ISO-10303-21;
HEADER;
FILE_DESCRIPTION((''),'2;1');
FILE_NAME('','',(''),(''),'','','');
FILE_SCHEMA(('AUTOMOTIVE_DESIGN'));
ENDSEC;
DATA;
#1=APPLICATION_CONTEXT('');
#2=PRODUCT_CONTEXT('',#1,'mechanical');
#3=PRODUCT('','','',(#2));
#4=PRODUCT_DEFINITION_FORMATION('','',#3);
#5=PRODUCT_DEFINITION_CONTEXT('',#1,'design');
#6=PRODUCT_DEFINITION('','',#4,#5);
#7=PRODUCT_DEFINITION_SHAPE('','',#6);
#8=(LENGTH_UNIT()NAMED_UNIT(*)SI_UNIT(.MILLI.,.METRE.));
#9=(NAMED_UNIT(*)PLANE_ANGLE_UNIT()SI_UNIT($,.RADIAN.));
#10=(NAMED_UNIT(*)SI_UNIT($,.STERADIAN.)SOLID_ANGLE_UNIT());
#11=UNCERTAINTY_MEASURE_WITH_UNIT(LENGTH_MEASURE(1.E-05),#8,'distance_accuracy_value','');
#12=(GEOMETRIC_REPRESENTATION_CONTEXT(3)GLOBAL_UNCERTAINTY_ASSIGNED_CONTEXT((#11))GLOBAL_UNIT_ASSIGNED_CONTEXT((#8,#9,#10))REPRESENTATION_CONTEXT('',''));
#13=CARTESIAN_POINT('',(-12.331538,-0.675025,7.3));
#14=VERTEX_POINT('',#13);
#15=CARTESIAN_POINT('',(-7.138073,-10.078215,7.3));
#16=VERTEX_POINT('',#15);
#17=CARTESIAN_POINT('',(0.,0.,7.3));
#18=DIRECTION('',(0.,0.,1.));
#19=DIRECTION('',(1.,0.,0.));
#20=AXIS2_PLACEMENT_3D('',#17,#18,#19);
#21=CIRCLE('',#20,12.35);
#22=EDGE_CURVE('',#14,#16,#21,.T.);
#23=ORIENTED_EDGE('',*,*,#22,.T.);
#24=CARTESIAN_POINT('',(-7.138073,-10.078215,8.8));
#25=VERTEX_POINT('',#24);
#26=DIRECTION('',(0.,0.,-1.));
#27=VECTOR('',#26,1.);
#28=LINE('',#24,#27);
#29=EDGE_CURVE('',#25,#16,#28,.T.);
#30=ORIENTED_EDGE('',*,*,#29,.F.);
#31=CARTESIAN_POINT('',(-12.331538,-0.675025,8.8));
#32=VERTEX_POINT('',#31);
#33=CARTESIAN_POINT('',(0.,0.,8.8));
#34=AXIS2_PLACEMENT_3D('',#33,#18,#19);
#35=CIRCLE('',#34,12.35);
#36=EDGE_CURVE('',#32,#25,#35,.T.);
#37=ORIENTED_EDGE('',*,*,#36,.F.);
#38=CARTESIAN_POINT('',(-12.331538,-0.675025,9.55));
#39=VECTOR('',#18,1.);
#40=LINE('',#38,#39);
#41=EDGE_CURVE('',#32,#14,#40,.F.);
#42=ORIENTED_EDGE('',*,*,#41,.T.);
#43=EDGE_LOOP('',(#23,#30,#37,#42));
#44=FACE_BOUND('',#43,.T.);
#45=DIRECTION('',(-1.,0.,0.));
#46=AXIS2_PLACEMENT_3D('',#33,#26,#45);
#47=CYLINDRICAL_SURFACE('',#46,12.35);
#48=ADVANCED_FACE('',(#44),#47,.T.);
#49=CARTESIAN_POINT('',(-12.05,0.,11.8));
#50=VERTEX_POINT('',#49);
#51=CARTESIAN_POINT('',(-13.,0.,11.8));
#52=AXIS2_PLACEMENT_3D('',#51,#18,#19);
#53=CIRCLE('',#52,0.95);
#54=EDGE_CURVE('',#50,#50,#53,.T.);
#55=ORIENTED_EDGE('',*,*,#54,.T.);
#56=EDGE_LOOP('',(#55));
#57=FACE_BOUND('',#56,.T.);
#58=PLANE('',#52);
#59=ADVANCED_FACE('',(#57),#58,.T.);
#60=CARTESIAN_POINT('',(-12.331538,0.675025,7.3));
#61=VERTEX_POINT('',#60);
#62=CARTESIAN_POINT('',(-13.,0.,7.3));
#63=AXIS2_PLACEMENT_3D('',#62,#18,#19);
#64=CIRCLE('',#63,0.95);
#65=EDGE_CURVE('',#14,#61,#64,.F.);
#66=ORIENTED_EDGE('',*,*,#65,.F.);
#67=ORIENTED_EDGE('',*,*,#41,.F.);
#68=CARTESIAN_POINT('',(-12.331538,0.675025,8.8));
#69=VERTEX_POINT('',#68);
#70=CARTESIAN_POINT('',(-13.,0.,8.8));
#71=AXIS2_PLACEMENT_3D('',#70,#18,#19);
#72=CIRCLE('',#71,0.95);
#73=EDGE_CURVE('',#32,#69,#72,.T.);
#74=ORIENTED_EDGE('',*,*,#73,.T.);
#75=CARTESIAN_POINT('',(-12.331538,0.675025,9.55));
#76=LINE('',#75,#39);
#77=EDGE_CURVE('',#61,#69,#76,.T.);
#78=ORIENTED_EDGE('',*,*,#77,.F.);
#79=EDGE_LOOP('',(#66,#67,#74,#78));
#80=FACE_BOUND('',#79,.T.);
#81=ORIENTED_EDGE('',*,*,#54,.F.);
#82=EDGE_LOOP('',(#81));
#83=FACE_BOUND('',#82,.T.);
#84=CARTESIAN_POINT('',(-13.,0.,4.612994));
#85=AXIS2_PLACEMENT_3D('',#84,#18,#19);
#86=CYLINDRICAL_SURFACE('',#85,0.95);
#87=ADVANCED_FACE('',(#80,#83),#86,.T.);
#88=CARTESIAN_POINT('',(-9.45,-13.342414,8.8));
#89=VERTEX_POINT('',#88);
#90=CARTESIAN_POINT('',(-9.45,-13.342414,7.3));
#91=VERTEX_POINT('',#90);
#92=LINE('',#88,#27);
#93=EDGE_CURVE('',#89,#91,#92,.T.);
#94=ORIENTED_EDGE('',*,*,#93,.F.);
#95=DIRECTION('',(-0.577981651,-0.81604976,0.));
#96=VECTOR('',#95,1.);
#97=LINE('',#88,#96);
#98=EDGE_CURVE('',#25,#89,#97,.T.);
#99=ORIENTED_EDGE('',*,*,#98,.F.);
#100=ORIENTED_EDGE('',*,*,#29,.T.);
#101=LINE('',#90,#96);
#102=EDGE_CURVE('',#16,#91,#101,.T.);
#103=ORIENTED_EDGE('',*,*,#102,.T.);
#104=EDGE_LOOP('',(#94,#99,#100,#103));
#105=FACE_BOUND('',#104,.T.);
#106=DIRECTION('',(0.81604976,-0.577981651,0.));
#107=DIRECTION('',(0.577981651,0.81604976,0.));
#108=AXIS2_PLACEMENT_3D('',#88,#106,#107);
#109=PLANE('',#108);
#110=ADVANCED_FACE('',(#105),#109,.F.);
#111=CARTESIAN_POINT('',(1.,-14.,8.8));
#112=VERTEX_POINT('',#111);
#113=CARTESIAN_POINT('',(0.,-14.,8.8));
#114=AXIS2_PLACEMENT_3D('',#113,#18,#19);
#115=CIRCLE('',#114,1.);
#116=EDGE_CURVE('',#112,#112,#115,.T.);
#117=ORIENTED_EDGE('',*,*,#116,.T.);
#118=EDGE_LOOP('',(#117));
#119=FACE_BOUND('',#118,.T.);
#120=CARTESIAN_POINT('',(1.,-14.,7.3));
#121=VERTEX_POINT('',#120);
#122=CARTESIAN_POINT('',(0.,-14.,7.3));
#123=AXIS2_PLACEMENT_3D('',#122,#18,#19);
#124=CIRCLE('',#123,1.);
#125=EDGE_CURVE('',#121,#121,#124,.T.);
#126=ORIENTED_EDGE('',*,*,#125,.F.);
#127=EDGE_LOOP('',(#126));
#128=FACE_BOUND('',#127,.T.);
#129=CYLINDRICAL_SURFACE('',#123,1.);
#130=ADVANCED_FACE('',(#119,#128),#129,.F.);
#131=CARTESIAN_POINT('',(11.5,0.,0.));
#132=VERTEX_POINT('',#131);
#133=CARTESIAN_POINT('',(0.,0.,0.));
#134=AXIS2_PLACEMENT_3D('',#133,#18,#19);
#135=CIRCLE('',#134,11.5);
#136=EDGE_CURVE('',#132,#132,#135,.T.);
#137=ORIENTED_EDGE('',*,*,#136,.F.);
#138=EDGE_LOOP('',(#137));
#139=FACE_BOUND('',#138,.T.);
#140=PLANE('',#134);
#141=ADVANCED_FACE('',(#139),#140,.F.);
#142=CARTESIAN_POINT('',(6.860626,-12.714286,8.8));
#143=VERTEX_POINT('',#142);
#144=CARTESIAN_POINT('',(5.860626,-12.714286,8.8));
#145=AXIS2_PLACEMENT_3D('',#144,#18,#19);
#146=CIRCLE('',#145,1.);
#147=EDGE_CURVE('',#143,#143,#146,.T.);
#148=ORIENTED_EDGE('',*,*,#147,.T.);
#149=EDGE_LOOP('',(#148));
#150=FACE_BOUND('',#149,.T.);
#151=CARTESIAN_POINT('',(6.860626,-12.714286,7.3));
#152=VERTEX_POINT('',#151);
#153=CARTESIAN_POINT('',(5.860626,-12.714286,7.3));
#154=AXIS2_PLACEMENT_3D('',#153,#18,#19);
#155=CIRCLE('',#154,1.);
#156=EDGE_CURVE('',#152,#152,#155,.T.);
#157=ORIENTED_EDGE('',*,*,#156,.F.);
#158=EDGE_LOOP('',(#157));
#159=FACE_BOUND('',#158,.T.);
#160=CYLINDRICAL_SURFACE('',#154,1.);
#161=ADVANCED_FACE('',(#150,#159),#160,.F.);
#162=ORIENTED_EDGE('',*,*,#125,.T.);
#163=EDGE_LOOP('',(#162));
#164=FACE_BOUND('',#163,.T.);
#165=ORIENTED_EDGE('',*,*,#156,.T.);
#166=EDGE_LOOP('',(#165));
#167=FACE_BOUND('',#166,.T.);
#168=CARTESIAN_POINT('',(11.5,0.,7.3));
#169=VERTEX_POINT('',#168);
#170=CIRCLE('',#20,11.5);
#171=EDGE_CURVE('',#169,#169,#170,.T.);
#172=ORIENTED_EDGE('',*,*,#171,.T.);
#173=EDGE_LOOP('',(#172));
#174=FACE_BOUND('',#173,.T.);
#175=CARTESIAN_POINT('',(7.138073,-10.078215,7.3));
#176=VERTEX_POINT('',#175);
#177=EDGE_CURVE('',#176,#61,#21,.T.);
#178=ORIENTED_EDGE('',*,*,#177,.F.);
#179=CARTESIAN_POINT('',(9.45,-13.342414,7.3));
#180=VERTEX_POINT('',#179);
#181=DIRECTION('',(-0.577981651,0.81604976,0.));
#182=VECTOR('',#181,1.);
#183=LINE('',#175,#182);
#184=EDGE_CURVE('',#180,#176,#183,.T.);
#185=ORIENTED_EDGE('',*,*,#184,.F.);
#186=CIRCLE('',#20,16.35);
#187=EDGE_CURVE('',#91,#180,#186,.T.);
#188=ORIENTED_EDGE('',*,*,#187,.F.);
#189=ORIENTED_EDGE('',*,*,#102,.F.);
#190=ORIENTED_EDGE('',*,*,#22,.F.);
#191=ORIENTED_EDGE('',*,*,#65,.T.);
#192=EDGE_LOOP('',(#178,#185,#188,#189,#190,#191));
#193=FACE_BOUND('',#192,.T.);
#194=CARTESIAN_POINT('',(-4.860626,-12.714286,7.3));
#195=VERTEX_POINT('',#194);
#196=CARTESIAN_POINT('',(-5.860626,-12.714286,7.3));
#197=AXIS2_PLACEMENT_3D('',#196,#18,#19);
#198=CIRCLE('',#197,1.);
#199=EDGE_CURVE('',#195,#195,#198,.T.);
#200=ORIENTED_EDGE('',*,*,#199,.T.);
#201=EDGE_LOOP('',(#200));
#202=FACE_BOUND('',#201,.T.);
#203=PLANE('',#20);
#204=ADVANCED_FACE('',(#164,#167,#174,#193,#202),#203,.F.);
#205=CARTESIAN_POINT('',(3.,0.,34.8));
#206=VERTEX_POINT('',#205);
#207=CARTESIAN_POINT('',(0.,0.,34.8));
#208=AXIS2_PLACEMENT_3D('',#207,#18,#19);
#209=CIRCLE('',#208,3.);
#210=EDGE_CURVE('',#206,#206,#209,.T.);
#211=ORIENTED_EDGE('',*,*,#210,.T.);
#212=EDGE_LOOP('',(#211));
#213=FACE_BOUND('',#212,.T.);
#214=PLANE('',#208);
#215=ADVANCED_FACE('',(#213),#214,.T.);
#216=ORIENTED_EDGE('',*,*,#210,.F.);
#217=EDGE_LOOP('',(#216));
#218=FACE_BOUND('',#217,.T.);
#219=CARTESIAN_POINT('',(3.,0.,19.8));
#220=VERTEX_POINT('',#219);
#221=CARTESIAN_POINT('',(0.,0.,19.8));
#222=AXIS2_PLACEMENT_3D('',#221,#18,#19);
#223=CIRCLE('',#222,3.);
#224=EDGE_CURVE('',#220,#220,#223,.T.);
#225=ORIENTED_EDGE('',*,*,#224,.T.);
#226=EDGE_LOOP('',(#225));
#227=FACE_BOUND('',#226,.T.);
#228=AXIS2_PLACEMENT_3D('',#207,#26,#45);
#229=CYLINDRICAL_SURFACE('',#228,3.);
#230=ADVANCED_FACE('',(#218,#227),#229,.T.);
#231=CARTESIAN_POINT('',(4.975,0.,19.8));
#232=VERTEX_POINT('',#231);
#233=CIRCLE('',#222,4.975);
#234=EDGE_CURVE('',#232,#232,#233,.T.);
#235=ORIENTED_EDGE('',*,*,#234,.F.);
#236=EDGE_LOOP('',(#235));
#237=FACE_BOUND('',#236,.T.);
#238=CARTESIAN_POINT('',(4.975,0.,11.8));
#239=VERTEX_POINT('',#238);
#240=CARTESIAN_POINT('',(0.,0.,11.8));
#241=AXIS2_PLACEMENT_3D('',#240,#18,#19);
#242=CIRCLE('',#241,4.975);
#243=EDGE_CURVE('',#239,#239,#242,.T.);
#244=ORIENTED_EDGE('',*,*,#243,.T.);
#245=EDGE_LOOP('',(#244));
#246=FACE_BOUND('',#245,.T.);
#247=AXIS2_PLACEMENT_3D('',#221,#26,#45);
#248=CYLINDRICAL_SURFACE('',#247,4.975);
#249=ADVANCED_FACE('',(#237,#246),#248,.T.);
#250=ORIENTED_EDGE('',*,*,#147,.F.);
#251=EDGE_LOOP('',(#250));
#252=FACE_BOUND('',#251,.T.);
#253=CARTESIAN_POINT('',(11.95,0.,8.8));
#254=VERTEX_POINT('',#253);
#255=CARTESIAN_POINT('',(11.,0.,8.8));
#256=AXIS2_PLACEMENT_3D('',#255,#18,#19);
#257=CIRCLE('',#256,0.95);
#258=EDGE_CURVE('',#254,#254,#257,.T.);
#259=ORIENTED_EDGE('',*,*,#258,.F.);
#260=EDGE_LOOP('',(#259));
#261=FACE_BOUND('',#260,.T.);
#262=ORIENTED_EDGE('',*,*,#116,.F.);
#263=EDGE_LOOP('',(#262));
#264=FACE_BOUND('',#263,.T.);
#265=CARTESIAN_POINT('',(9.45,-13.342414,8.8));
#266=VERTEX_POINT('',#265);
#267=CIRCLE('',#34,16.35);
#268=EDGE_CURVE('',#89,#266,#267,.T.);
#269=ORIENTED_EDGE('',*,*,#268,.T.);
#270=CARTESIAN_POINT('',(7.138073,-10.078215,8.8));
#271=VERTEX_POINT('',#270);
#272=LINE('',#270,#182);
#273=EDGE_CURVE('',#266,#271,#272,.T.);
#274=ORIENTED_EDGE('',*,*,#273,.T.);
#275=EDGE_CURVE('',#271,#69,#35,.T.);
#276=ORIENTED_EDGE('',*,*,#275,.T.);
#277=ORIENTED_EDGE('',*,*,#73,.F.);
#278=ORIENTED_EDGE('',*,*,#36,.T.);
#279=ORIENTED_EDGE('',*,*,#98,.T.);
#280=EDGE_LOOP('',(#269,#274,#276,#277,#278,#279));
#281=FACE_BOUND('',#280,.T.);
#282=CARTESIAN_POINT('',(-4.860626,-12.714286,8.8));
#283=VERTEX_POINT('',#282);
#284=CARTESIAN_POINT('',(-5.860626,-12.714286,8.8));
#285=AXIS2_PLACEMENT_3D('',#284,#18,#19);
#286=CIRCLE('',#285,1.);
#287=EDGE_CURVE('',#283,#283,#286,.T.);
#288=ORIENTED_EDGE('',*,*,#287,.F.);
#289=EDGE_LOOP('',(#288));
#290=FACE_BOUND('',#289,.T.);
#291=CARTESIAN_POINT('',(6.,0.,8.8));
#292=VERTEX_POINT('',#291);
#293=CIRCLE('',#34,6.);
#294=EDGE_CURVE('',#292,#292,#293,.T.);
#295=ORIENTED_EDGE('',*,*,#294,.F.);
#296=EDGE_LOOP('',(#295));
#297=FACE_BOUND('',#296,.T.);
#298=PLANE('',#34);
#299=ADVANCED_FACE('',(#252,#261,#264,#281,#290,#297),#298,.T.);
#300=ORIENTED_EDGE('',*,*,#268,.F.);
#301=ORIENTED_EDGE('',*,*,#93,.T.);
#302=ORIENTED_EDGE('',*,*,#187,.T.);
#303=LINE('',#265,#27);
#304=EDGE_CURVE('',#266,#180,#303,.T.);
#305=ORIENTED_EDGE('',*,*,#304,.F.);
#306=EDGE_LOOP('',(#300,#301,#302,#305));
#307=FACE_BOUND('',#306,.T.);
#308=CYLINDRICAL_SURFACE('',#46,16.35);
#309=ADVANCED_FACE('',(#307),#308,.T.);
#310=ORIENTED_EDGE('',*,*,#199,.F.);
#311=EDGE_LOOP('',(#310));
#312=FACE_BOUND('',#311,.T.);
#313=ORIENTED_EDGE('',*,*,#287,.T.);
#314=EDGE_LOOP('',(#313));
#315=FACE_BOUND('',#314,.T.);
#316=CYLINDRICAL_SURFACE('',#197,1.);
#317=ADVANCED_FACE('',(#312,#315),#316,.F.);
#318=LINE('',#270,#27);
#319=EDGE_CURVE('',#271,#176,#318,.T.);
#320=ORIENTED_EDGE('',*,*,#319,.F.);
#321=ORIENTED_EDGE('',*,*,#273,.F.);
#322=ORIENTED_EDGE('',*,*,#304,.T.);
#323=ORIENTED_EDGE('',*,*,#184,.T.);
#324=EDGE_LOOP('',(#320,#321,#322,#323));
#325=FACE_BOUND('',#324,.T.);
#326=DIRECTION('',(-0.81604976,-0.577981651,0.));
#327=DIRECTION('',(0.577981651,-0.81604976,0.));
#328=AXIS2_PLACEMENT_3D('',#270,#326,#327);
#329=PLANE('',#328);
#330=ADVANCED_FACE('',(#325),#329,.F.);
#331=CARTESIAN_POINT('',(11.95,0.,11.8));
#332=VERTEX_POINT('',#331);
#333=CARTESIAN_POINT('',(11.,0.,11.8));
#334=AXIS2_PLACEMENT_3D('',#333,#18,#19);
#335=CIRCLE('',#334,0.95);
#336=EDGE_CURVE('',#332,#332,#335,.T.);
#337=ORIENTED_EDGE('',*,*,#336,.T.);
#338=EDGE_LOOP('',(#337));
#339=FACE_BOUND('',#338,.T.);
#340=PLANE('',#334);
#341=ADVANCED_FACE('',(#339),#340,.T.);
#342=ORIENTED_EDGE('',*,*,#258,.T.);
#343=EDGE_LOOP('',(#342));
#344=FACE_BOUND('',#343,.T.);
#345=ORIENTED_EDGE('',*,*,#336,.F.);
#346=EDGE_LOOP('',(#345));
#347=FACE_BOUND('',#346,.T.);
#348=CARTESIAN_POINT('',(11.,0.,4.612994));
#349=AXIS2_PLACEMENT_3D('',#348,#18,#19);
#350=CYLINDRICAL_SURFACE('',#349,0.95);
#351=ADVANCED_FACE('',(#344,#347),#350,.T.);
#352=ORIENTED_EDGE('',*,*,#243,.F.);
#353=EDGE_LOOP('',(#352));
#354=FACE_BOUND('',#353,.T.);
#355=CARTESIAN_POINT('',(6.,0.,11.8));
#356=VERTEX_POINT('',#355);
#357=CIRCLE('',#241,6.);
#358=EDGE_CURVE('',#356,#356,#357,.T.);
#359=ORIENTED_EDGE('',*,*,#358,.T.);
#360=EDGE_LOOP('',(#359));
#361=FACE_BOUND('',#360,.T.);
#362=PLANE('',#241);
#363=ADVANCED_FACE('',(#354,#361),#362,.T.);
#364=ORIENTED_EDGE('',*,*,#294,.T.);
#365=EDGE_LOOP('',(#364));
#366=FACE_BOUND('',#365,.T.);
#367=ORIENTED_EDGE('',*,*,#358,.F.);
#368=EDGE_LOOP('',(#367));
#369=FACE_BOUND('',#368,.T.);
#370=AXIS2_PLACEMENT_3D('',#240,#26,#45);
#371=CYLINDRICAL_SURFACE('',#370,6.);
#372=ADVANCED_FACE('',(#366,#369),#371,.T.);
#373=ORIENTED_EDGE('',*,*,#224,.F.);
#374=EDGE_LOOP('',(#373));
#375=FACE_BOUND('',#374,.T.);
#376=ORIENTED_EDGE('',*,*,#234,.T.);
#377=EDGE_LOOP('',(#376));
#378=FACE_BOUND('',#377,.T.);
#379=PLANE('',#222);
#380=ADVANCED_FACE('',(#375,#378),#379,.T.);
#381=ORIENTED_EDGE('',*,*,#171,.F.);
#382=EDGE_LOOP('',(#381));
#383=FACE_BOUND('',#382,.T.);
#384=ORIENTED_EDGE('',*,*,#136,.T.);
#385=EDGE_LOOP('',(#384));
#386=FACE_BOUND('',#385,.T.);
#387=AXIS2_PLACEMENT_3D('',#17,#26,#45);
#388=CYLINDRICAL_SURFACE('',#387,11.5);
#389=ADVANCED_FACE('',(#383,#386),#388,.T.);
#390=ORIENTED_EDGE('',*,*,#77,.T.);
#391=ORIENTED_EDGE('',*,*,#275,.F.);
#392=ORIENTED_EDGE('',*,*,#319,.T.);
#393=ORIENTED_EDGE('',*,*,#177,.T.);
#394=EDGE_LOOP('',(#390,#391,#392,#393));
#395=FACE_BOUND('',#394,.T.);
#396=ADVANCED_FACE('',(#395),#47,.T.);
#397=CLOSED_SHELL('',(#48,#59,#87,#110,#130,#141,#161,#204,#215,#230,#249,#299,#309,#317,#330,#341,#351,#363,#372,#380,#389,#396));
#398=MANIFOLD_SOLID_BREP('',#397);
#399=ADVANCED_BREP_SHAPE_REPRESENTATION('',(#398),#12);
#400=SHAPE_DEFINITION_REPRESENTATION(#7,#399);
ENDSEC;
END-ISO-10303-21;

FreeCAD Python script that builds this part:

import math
import FreeCAD as App
import Part
import Sketcher
from FreeCAD import Vector
Q = App.Units.Quantity

doc = App.newDocument("Part")
params = doc.addObject("Spreadsheet::Sheet", "Params")
for row, (alias, value) in enumerate([
    ("sketch1_diameter", "23 mm"),
    ("pad1_length", "7.3 mm"),
    ("sketch2_radius", "16.35 mm"),
    ("sketch2_radius2", "12.35 mm"),
    ("pad2_length", "1.5 mm"),
    ("sketch3_diameter", "2 mm"),
    ("pocket1_length", "1.5 mm"),
    ("sketch4_diameter", "12 mm"),
    ("pad3_length", "3 mm"),
    ("sketch5_diameter", "9.95 mm"),
    ("pad4_length", "8 mm"),
    ("sketch6_diameter", "6 mm"),
    ("pad5_length", "15 mm"),
    ("sketch7_diameter", "1.9 mm"),
    ("pad6_length", "4.5 mm"),
], start=1):
    params.set(f"A{row}", alias)
    params.set(f"B{row}", "=" + value)
    params.setAlias(f"B{row}", alias)

body = doc.addObject("PartDesign::Body", "Body")

# Sketch on XY plane
sketch1 = doc.addObject("Sketcher::SketchObject", "Sketch")
body.addObject(sketch1)
sketch1.AttachmentSupport = (doc.XY_Plane, [""])
sketch1.MapMode = "FlatFace"
sketch1.addGeometry(Part.Circle(Vector(0, 0, 0), Vector(0, 0, 1), 11.5), False)
sketch1.addConstraint(Sketcher.Constraint("Coincident", 0, 3, -1, 1))
sketch1.addConstraint(Sketcher.Constraint("Diameter", 0, Q("23 mm")))
sketch1.setExpression("Constraints[1]", "Params.sketch1_diameter")
pad1 = doc.addObject("PartDesign::Pad", "Pad")
body.addObject(pad1)
pad1.Profile = sketch1
pad1.setExpression("Length", "Params.pad1_length")

# Sketch on XY plane
sketch2 = doc.addObject("Sketcher::SketchObject", "Sketch001")
body.addObject(sketch2)
sketch2.AttachmentSupport = (doc.XY_Plane, [""])
sketch2.MapMode = "FlatFace"
sketch2.AttachmentOffset = App.Placement(Vector(0, 0, 7.3), App.Rotation())
sketch2.addGeometry(Part.LineSegment(Vector(-7.138073, -10.078215, 0), Vector(-9.45, -13.342414, 0)), False)
sketch2.addGeometry(Part.ArcOfCircle(Part.Circle(Vector(0, 0, 0), Vector(0, 0, 1), 16.35), math.radians(-125.308708), math.radians(-54.691292)), False)
sketch2.addGeometry(Part.LineSegment(Vector(9.45, -13.342414, 0), Vector(7.138073, -10.078215, 0)), False)
sketch2.addGeometry(Part.ArcOfCircle(Part.Circle(Vector(0, 0, 0), Vector(0, 0, 1), 12.35), math.radians(-54.691292), math.radians(234.691292)), False)
sketch2.addConstraint(Sketcher.Constraint("Coincident", 0, 2, 1, 1))
sketch2.addConstraint(Sketcher.Constraint("Coincident", 1, 2, 2, 1))
sketch2.addConstraint(Sketcher.Constraint("Coincident", 2, 2, 3, 1))
sketch2.addConstraint(Sketcher.Constraint("Coincident", 3, 2, 0, 1))
sketch2.addConstraint(Sketcher.Constraint("Coincident", 1, 3, -1, 1))
sketch2.addConstraint(Sketcher.Constraint("Coincident", 3, 3, -1, 1))
sketch2.addConstraint(Sketcher.Constraint("Horizontal", 0, 2, 1, 2))
sketch2.addConstraint(Sketcher.Constraint("Horizontal", 2, 2, 3, 2))
sketch2.addConstraint(Sketcher.Constraint("Radius", 1, Q("16.35 mm")))
sketch2.addConstraint(Sketcher.Constraint("Radius", 3, Q("12.35 mm")))
sketch2.addConstraint(Sketcher.Constraint("DistanceX", 0, 2, 1, 2, Q("18.9 mm")))
sketch2.addConstraint(Sketcher.Constraint("DistanceY", 1, 2, 2, 2, Q("3.264199 mm")))
sketch2.setExpression("Constraints[8]", "Params.sketch2_radius")
sketch2.setExpression("Constraints[9]", "Params.sketch2_radius2")
pad2 = doc.addObject("PartDesign::Pad", "Pad001")
body.addObject(pad2)
pad2.Profile = sketch2
pad2.setExpression("Length", "Params.pad2_length")

# Sketch on XY plane
sketch3 = doc.addObject("Sketcher::SketchObject", "Sketch002")
body.addObject(sketch3)
sketch3.AttachmentSupport = (doc.XY_Plane, [""])
sketch3.MapMode = "FlatFace"
sketch3.AttachmentOffset = App.Placement(Vector(0, 0, 8.8), App.Rotation())
sketch3.addGeometry(Part.Circle(Vector(0, -14, 0), Vector(0, 0, 1), 1), False)
sketch3.addGeometry(Part.Circle(Vector(5.860626, -12.714286, 0), Vector(0, 0, 1), 1), False)
sketch3.addGeometry(Part.Circle(Vector(-5.860626, -12.714286, 0), Vector(0, 0, 1), 1), False)
sketch3.addConstraint(Sketcher.Constraint("Equal", 0, 1))
sketch3.addConstraint(Sketcher.Constraint("Equal", 1, 2))
sketch3.addConstraint(Sketcher.Constraint("Symmetric", 1, 3, 2, 3, -2))
sketch3.addConstraint(Sketcher.Constraint("PointOnObject", 0, 3, -2))
sketch3.addConstraint(Sketcher.Constraint("Diameter", 0, Q("2 mm")))
sketch3.addConstraint(Sketcher.Constraint("DistanceY", 0, 3, -1, 1, Q("14 mm")))
sketch3.addConstraint(Sketcher.Constraint("DistanceX", -1, 1, 1, 3, Q("5.860626 mm")))
sketch3.addConstraint(Sketcher.Constraint("DistanceY", 1, 3, -1, 1, Q("12.714286 mm")))
sketch3.setExpression("Constraints[4]", "Params.sketch3_diameter")
pocket1 = doc.addObject("PartDesign::Pocket", "Pocket")
body.addObject(pocket1)
pocket1.Profile = sketch3
pocket1.setExpression("Length", "Params.pocket1_length")

# Sketch on XY plane
sketch4 = doc.addObject("Sketcher::SketchObject", "Sketch003")
body.addObject(sketch4)
sketch4.AttachmentSupport = (doc.XY_Plane, [""])
sketch4.MapMode = "FlatFace"
sketch4.AttachmentOffset = App.Placement(Vector(0, 0, 8.8), App.Rotation())
sketch4.addGeometry(Part.Circle(Vector(0, 0, 0), Vector(0, 0, 1), 6), False)
sketch4.addConstraint(Sketcher.Constraint("Coincident", 0, 3, -1, 1))
sketch4.addConstraint(Sketcher.Constraint("Diameter", 0, Q("12 mm")))
sketch4.setExpression("Constraints[1]", "Params.sketch4_diameter")
pad3 = doc.addObject("PartDesign::Pad", "Pad002")
body.addObject(pad3)
pad3.Profile = sketch4
pad3.setExpression("Length", "Params.pad3_length")

# Sketch on XY plane
sketch5 = doc.addObject("Sketcher::SketchObject", "Sketch004")
body.addObject(sketch5)
sketch5.AttachmentSupport = (doc.XY_Plane, [""])
sketch5.MapMode = "FlatFace"
sketch5.AttachmentOffset = App.Placement(Vector(0, 0, 11.8), App.Rotation())
sketch5.addGeometry(Part.Circle(Vector(0, 0, 0), Vector(0, 0, 1), 4.975), False)
sketch5.addConstraint(Sketcher.Constraint("Coincident", 0, 3, -1, 1))
sketch5.addConstraint(Sketcher.Constraint("Diameter", 0, Q("9.95 mm")))
sketch5.setExpression("Constraints[1]", "Params.sketch5_diameter")
pad4 = doc.addObject("PartDesign::Pad", "Pad003")
body.addObject(pad4)
pad4.Profile = sketch5
pad4.setExpression("Length", "Params.pad4_length")

# Sketch on XY plane
sketch6 = doc.addObject("Sketcher::SketchObject", "Sketch005")
body.addObject(sketch6)
sketch6.AttachmentSupport = (doc.XY_Plane, [""])
sketch6.MapMode = "FlatFace"
sketch6.AttachmentOffset = App.Placement(Vector(0, 0, 19.8), App.Rotation())
sketch6.addGeometry(Part.Circle(Vector(0, 0, 0), Vector(0, 0, 1), 3), False)
sketch6.addConstraint(Sketcher.Constraint("Coincident", 0, 3, -1, 1))
sketch6.addConstraint(Sketcher.Constraint("Diameter", 0, Q("6 mm")))
sketch6.setExpression("Constraints[1]", "Params.sketch6_diameter")
pad5 = doc.addObject("PartDesign::Pad", "Pad004")
body.addObject(pad5)
pad5.Profile = sketch6
pad5.setExpression("Length", "Params.pad5_length")

# Sketch on XY plane
sketch7 = doc.addObject("Sketcher::SketchObject", "Sketch006")
body.addObject(sketch7)
sketch7.AttachmentSupport = (doc.XY_Plane, [""])
sketch7.MapMode = "FlatFace"
sketch7.AttachmentOffset = App.Placement(Vector(0, 0, 7.3), App.Rotation())
sketch7.addGeometry(Part.Circle(Vector(11, 0, 0), Vector(0, 0, 1), 0.95), False)
sketch7.addGeometry(Part.Circle(Vector(-13, 0, 0), Vector(0, 0, 1), 0.95), False)
sketch7.addConstraint(Sketcher.Constraint("Equal", 0, 1))
sketch7.addConstraint(Sketcher.Constraint("PointOnObject", 0, 3, -1))
sketch7.addConstraint(Sketcher.Constraint("PointOnObject", 1, 3, -1))
sketch7.addConstraint(Sketcher.Constraint("Diameter", 0, Q("1.9 mm")))
sketch7.addConstraint(Sketcher.Constraint("DistanceX", -1, 1, 0, 3, Q("11 mm")))
sketch7.addConstraint(Sketcher.Constraint("DistanceX", 1, 3, -1, 1, Q("13 mm")))
sketch7.setExpression("Constraints[3]", "Params.sketch7_diameter")
pad6 = doc.addObject("PartDesign::Pad", "Pad005")
body.addObject(pad6)
pad6.Profile = sketch7
pad6.setExpression("Length", "Params.pad6_length")

doc.recompute()
